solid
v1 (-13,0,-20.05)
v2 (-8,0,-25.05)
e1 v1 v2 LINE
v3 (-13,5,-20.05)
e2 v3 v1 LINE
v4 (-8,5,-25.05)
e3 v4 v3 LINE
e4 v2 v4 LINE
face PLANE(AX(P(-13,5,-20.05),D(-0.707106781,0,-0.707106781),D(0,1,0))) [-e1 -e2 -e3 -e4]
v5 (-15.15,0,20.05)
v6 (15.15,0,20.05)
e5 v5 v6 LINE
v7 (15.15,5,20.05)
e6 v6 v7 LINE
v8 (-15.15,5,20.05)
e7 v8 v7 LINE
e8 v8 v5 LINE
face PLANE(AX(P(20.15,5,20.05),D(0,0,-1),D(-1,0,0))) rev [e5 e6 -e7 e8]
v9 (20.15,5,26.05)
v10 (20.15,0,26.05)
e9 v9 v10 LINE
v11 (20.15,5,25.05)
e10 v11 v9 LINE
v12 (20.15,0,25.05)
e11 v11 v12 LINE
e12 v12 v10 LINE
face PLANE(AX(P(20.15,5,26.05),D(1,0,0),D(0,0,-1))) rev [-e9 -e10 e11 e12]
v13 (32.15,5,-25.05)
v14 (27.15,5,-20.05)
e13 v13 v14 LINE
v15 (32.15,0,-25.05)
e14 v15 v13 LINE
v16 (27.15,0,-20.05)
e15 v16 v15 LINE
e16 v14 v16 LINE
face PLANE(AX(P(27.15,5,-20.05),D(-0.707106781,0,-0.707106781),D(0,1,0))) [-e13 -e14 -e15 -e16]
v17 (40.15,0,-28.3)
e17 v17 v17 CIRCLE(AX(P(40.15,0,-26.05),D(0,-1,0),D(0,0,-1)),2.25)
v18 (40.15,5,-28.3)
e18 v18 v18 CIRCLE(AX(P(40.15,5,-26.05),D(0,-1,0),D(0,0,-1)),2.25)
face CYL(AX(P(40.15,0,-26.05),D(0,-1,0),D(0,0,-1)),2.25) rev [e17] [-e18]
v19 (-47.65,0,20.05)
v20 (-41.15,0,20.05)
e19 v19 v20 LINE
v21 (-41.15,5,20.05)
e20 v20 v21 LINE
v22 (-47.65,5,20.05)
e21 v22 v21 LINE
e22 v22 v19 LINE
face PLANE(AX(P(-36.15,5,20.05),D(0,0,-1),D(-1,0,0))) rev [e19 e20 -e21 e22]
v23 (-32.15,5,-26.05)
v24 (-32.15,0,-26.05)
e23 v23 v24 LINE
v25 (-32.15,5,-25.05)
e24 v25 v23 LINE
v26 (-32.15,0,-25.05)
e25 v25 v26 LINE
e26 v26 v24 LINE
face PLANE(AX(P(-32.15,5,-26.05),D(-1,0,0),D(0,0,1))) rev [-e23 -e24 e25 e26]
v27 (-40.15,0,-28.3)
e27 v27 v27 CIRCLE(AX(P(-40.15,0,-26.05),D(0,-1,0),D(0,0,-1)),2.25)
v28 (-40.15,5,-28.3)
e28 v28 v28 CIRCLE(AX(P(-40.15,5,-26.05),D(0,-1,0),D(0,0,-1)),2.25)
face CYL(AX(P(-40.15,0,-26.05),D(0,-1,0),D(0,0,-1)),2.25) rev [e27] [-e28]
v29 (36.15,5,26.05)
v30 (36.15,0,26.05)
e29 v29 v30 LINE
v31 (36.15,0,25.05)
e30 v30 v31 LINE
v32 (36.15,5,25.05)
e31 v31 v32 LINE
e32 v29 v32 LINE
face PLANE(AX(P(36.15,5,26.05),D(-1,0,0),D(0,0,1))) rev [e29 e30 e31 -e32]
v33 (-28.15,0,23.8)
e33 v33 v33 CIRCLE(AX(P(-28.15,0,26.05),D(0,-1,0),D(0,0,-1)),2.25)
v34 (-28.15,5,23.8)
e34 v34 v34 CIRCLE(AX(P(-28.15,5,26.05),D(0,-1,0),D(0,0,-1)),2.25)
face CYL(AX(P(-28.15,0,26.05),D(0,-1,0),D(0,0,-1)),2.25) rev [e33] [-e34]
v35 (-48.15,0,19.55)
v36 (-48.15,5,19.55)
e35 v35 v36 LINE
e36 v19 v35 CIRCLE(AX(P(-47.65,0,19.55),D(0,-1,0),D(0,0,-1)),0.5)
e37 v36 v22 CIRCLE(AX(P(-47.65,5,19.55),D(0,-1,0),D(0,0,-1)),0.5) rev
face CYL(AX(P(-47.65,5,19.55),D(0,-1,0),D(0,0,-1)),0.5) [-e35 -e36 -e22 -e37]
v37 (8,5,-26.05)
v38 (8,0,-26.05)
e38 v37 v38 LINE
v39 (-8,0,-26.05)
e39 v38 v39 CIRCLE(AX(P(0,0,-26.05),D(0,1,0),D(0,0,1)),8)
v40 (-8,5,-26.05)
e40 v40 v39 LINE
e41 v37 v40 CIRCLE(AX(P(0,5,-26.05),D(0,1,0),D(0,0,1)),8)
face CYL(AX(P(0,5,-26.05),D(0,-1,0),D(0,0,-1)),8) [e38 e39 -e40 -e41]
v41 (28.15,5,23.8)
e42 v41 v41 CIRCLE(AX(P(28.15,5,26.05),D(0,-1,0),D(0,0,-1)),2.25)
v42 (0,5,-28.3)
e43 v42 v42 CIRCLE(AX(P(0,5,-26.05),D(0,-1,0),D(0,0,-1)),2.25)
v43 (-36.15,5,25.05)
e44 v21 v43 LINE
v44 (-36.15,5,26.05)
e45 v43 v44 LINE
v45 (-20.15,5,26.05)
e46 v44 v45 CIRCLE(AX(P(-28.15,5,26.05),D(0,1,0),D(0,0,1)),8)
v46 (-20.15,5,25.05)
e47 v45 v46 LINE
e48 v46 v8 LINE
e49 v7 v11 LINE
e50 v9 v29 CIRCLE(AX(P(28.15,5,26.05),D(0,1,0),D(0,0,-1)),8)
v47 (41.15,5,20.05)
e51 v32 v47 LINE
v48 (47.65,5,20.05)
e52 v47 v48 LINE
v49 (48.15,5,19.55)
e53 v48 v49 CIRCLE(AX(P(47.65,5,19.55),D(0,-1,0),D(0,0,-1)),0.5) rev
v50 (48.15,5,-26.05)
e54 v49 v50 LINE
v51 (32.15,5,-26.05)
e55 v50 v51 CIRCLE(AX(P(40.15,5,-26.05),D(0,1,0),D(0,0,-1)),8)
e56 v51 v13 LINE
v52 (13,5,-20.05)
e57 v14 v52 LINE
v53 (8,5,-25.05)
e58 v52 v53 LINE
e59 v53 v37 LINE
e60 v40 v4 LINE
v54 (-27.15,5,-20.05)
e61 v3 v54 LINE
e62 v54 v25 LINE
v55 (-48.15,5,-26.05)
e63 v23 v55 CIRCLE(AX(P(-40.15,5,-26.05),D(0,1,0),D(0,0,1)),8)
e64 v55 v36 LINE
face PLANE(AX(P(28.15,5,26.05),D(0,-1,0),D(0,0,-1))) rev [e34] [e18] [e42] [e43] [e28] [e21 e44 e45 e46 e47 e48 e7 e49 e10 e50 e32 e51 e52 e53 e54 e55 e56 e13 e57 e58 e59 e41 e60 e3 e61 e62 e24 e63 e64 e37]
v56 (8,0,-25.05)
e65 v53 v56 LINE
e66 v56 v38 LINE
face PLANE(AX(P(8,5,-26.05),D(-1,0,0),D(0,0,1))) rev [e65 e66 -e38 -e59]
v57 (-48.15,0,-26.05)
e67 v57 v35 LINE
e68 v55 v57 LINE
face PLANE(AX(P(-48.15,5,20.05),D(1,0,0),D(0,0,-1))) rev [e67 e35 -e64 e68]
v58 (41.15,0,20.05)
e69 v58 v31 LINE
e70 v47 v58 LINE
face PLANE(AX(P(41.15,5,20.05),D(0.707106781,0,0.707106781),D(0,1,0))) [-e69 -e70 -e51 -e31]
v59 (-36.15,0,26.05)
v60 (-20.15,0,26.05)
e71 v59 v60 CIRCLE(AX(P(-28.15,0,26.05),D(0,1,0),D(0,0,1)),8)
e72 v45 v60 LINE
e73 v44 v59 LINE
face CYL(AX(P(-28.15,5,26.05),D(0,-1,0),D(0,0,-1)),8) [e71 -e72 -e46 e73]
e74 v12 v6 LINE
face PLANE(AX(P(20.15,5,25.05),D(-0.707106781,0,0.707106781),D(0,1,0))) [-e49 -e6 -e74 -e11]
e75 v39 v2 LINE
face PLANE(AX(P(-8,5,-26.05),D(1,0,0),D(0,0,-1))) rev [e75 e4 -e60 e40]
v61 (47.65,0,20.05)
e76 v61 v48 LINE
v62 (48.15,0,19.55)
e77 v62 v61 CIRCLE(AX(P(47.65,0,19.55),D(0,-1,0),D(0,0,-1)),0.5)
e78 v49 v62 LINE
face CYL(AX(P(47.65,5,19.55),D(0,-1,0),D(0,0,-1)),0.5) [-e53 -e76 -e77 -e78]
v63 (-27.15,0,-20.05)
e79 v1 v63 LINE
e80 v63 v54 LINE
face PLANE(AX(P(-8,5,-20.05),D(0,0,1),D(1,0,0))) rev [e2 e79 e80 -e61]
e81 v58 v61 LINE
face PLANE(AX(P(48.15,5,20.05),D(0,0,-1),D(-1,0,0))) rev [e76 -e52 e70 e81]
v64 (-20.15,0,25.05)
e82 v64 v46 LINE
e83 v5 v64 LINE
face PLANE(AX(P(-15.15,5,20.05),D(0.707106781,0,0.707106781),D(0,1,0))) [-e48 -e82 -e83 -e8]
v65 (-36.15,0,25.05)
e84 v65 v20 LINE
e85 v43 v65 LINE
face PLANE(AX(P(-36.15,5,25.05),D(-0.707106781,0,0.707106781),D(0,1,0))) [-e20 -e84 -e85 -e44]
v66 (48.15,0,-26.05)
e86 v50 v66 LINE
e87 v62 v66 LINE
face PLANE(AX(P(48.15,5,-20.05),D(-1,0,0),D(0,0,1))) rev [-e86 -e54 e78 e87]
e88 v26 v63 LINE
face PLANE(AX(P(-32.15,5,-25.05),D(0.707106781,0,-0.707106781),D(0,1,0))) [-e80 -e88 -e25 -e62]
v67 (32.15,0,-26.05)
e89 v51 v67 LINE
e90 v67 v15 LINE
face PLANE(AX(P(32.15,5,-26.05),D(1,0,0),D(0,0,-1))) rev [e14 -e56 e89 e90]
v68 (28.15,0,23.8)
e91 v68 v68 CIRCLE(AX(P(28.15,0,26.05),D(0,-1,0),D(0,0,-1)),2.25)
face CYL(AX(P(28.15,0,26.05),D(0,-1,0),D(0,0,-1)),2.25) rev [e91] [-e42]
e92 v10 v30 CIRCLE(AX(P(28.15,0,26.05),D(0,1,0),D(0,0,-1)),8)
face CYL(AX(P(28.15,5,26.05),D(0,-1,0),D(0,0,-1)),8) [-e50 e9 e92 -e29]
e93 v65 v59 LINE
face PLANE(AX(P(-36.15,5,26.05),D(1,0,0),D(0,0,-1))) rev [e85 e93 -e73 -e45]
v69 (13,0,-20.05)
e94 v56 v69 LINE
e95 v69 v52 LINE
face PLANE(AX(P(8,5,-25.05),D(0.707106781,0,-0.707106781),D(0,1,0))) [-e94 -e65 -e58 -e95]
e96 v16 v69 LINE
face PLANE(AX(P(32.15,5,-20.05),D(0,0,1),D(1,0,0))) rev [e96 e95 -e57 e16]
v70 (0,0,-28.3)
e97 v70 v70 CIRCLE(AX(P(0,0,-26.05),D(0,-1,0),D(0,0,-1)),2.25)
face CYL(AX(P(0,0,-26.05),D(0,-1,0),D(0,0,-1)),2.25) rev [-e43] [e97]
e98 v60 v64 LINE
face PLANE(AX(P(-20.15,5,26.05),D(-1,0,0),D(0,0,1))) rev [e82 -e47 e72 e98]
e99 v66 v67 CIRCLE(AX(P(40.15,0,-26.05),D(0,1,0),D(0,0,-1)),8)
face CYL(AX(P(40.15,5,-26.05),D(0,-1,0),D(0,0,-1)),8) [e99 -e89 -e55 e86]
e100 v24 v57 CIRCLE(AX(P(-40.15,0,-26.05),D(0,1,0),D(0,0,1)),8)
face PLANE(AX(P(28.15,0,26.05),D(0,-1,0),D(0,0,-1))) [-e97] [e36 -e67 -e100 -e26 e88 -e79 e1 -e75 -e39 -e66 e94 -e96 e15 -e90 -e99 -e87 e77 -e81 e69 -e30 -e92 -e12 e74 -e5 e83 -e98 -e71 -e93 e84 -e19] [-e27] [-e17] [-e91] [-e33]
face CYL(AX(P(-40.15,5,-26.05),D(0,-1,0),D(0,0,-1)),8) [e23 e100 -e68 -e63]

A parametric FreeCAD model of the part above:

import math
import FreeCAD as App
import Part
import Sketcher
from FreeCAD import Vector


def edges_at(feature, points):
    """Names of the edges that pass closest to the given points."""
    edges = feature.Shape.Edges
    near = lambda p: min(range(len(edges)), key=lambda i: edges[i].distToShape(Part.Vertex(*p))[0])
    return sorted({f"Edge{near(p) + 1}" for p in points})

doc = App.newDocument("Part")
body = doc.addObject("PartDesign::Body", "Body")

# Sketch on XZ plane
sketch1 = doc.addObject("Sketcher::SketchObject", "Sketch")
body.addObject(sketch1)
sketch1.AttachmentSupport = (doc.XZ_Plane, [""])
sketch1.MapMode = "FlatFace"
sketch1.addGeometry(Part.LineSegment(Vector(48.15, 20.05, 0), Vector(48.15, -26.05, 0)), False)
sketch1.addGeometry(Part.ArcOfCircle(Part.Circle(Vector(40.15, -26.05, 0), Vector(0, 0, 1), 8), math.radians(180), math.radians(360)), False)
sketch1.addGeometry(Part.LineSegment(Vector(32.15, -26.05, 0), Vector(32.15, -20.05, 0)), False)
sketch1.addGeometry(Part.LineSegment(Vector(32.15, -20.05, 0), Vector(8, -20.05, 0)), False)
sketch1.addGeometry(Part.LineSegment(Vector(8, -20.05, 0), Vector(8, -26.05, 0)), False)
sketch1.addGeometry(Part.ArcOfCircle(Part.Circle(Vector(0, -26.05, 0), Vector(0, 0, 1), 8), math.radians(180), math.radians(360)), False)
sketch1.addGeometry(Part.LineSegment(Vector(-8, -26.05, 0), Vector(-8, -20.05, 0)), False)
sketch1.addGeometry(Part.LineSegment(Vector(-8, -20.05, 0), Vector(-32.15, -20.05, 0)), False)
sketch1.addGeometry(Part.LineSegment(Vector(-32.15, -20.05, 0), Vector(-32.15, -26.05, 0)), False)
sketch1.addGeometry(Part.ArcOfCircle(Part.Circle(Vector(-40.15, -26.05, 0), Vector(0, 0, 1), 8), math.radians(180), math.radians(360)), False)
sketch1.addGeometry(Part.LineSegment(Vector(-48.15, -26.05, 0), Vector(-48.15, 20.05, 0)), False)
sketch1.addGeometry(Part.LineSegment(Vector(-48.15, 20.05, 0), Vector(-36.15, 20.05, 0)), False)
sketch1.addGeometry(Part.LineSegment(Vector(-36.15, 20.05, 0), Vector(-36.15, 26.05, 0)), False)
sketch1.addGeometry(Part.ArcOfCircle(Part.Circle(Vector(-28.15, 26.05, 0), Vector(0, 0, 1), 8), math.radians(0), math.radians(180)), False)
sketch1.addGeometry(Part.LineSegment(Vector(-20.15, 26.05, 0), Vector(-20.15, 20.05, 0)), False)
sketch1.addGeometry(Part.LineSegment(Vector(-20.15, 20.05, 0), Vector(20.15, 20.05, 0)), False)
sketch1.addGeometry(Part.LineSegment(Vector(20.15, 20.05, 0), Vector(20.15, 26.05, 0)), False)
sketch1.addGeometry(Part.ArcOfCircle(Part.Circle(Vector(28.15, 26.05, 0), Vector(0, 0, 1), 8), math.radians(0), math.radians(180)), False)
sketch1.addGeometry(Part.LineSegment(Vector(36.15, 26.05, 0), Vector(36.15, 20.05, 0)), False)
sketch1.addGeometry(Part.LineSegment(Vector(36.15, 20.05, 0), Vector(48.15, 20.05, 0)), False)
sketch1.addConstraint(Sketcher.Constraint("Tangent", 0, 2, 1, 2))
sketch1.addConstraint(Sketcher.Constraint("Tangent", 1, 1, 2, 1))
sketch1.addConstraint(Sketcher.Constraint("Coincident", 2, 2, 3, 1))
sketch1.addConstraint(Sketcher.Constraint("Coincident", 3, 2, 4, 1))
sketch1.addConstraint(Sketcher.Constraint("Tangent", 4, 2, 5, 2))
sketch1.addConstraint(Sketcher.Constraint("Tangent", 5, 1, 6, 1))
sketch1.addConstraint(Sketcher.Constraint("Coincident", 6, 2, 7, 1))
sketch1.addConstraint(Sketcher.Constraint("Coincident", 7, 2, 8, 1))
sketch1.addConstraint(Sketcher.Constraint("Tangent", 8, 2, 9, 2))
sketch1.addConstraint(Sketcher.Constraint("Tangent", 9, 1, 10, 1))
sketch1.addConstraint(Sketcher.Constraint("Coincident", 10, 2, 11, 1))
sketch1.addConstraint(Sketcher.Constraint("Coincident", 11, 2, 12, 1))
sketch1.addConstraint(Sketcher.Constraint("Tangent", 12, 2, 13, 2))
sketch1.addConstraint(Sketcher.Constraint("Tangent", 13, 1, 14, 1))
sketch1.addConstraint(Sketcher.Constraint("Coincident", 14, 2, 15, 1))
sketch1.addConstraint(Sketcher.Constraint("Coincident", 15, 2, 16, 1))
sketch1.addConstraint(Sketcher.Constraint("Tangent", 16, 2, 17, 2))
sketch1.addConstraint(Sketcher.Constraint("Tangent", 17, 1, 18, 1))
sketch1.addConstraint(Sketcher.Constraint("Coincident", 18, 2, 19, 1))
sketch1.addConstraint(Sketcher.Constraint("Coincident", 19, 2, 0, 1))
sketch1.addConstraint(Sketcher.Constraint("Vertical", 0))
sketch1.addConstraint(Sketcher.Constraint("Vertical", 2))
sketch1.addConstraint(Sketcher.Constraint("Horizontal", 3))
sketch1.addConstraint(Sketcher.Constraint("Vertical", 4))
sketch1.addConstraint(Sketcher.Constraint("Vertical", 6))
sketch1.addConstraint(Sketcher.Constraint("Horizontal", 7))
sketch1.addConstraint(Sketcher.Constraint("Vertical", 8))
sketch1.addConstraint(Sketcher.Constraint("Vertical", 10))
sketch1.addConstraint(Sketcher.Constraint("Horizontal", 11))
sketch1.addConstraint(Sketcher.Constraint("Vertical", 12))
sketch1.addConstraint(Sketcher.Constraint("Vertical", 14))
sketch1.addConstraint(Sketcher.Constraint("Horizontal", 15))
sketch1.addConstraint(Sketcher.Constraint("Vertical", 16))
sketch1.addConstraint(Sketcher.Constraint("Vertical", 18))
sketch1.addConstraint(Sketcher.Constraint("Horizontal", 19))
sketch1.addConstraint(Sketcher.Constraint("Equal", 1, 5))
sketch1.addConstraint(Sketcher.Constraint("Equal", 5, 9))
sketch1.addConstraint(Sketcher.Constraint("Equal", 9, 13))
sketch1.addConstraint(Sketcher.Constraint("Equal", 13, 17))
sketch1.addConstraint(Sketcher.Constraint("Symmetric", 1, 3, 9, 3, -2))
sketch1.addConstraint(Sketcher.Constraint("Symmetric", 13, 3, 17, 3, -2))
sketch1.addConstraint(Sketcher.Constraint("Symmetric", 3, 2, 6, 2, -2))
sketch1.addConstraint(Sketcher.Constraint("Horizontal", 1, 3, 5, 3))
sketch1.addConstraint(Sketcher.Constraint("Horizontal", 11, 2, 14, 2))
sketch1.addConstraint(Sketcher.Constraint("Horizontal", 15, 2, 18, 2))
sketch1.addConstraint(Sketcher.Constraint("Equal", 8, 12))
sketch1.addConstraint(Sketcher.Constraint("Radius", 1, 8.0))
sketch1.addConstraint(Sketcher.Constraint("DistanceX", 11, 1, 11, 2, 12.0))
sketch1.addConstraint(Sketcher.Constraint("DistanceY", 2, 1, 2, 2, 6.0))
sketch1.addConstraint(Sketcher.Constraint("DistanceX", 15, 1, 15, 2, 40.3))
sketch1.addConstraint(Sketcher.Constraint("DistanceY", 0, 2, 0, 1, 46.1))
sketch1.addConstraint(Sketcher.Constraint("DistanceY", 1, 3, -1, 1, 26.05))
pad1 = doc.addObject("PartDesign::Pad", "Pad")
body.addObject(pad1)
pad1.Profile = sketch1
pad1.Length = 5
pad1.Reversed = True
doc.recompute()

chamfer = doc.addObject("PartDesign::Chamfer", "Chamfer")
body.addObject(chamfer)
chamfer.Base = (pad1, edges_at(pad1, [
    (36.15, 2.5, 20.05),
    (20.15, 2.5, 20.05),
    (-20.15, 2.5, 20.05),
    (-36.15, 2.5, 20.05),
    (-32.15, 2.5, -20.05),
    (-8, 2.5, -20.05),
    (8, 2.5, -20.05),
    (32.15, 2.5, -20.05),
]))
chamfer.Size = 5

# Sketch on XZ plane
sketch2 = doc.addObject("Sketcher::SketchObject", "Sketch001")
body.addObject(sketch2)
sketch2.AttachmentSupport = (doc.XZ_Plane, [""])
sketch2.MapMode = "FlatFace"
sketch2.addGeometry(Part.Circle(Vector(28.15, 26.05, 0), Vector(0, 0, 1), 2.25), False)
sketch2.addGeometry(Part.Circle(Vector(-40.15, -26.05, 0), Vector(0, 0, 1), 2.25), False)
sketch2.addGeometry(Part.Circle(Vector(0, -26.05, 0), Vector(0, 0, 1), 2.25), False)
sketch2.addGeometry(Part.Circle(Vector(40.15, -26.05, 0), Vector(0, 0, 1), 2.25), False)
sketch2.addGeometry(Part.Circle(Vector(-28.15, 26.05, 0), Vector(0, 0, 1), 2.25), False)
sketch2.addConstraint(Sketcher.Constraint("Equal", 0, 1))
sketch2.addConstraint(Sketcher.Constraint("Equal", 1, 2))
sketch2.addConstraint(Sketcher.Constraint("Equal", 2, 3))
sketch2.addConstraint(Sketcher.Constraint("Equal", 3, 4))
sketch2.addConstraint(Sketcher.Constraint("Symmetric", 1, 3, 3, 3, -2))
sketch2.addConstraint(Sketcher.Constraint("Symmetric", 0, 3, 4, 3, -2))
sketch2.addConstraint(Sketcher.Constraint("PointOnObject", 2, 3, -2))
sketch2.addConstraint(Sketcher.Constraint("Horizontal", 1, 3, 2, 3))
sketch2.addConstraint(Sketcher.Constraint("Diameter", 0, 4.5))
sketch2.addConstraint(Sketcher.Constraint("DistanceX", 0, 3, 3, 3, 12.0))
sketch2.addConstraint(Sketcher.Constraint("DistanceX", 1, 3, 0, 3, 68.3))
sketch2.addConstraint(Sketcher.Constraint("DistanceY", 1, 3, 0, 3, 52.1))
sketch2.addConstraint(Sketcher.Constraint("DistanceY", -1, 1, 0, 3, 26.05))
doc.recompute()
hole = doc.addObject("PartDesign::Hole", "Hole")
body.addObject(hole)
hole.Profile = sketch2
hole.ThreadType = "None"
hole.Diameter = 4.5
hole.DepthType = "ThroughAll"
doc.recompute()

fillet = doc.addObject("PartDesign::Fillet", "Fillet")
body.addObject(fillet)
fillet.Base = (hole, edges_at(hole, [(-48.15, 2.5, 20.05), (48.15, 2.5, 20.05)]))
fillet.Radius = 0.5

doc.recompute()
